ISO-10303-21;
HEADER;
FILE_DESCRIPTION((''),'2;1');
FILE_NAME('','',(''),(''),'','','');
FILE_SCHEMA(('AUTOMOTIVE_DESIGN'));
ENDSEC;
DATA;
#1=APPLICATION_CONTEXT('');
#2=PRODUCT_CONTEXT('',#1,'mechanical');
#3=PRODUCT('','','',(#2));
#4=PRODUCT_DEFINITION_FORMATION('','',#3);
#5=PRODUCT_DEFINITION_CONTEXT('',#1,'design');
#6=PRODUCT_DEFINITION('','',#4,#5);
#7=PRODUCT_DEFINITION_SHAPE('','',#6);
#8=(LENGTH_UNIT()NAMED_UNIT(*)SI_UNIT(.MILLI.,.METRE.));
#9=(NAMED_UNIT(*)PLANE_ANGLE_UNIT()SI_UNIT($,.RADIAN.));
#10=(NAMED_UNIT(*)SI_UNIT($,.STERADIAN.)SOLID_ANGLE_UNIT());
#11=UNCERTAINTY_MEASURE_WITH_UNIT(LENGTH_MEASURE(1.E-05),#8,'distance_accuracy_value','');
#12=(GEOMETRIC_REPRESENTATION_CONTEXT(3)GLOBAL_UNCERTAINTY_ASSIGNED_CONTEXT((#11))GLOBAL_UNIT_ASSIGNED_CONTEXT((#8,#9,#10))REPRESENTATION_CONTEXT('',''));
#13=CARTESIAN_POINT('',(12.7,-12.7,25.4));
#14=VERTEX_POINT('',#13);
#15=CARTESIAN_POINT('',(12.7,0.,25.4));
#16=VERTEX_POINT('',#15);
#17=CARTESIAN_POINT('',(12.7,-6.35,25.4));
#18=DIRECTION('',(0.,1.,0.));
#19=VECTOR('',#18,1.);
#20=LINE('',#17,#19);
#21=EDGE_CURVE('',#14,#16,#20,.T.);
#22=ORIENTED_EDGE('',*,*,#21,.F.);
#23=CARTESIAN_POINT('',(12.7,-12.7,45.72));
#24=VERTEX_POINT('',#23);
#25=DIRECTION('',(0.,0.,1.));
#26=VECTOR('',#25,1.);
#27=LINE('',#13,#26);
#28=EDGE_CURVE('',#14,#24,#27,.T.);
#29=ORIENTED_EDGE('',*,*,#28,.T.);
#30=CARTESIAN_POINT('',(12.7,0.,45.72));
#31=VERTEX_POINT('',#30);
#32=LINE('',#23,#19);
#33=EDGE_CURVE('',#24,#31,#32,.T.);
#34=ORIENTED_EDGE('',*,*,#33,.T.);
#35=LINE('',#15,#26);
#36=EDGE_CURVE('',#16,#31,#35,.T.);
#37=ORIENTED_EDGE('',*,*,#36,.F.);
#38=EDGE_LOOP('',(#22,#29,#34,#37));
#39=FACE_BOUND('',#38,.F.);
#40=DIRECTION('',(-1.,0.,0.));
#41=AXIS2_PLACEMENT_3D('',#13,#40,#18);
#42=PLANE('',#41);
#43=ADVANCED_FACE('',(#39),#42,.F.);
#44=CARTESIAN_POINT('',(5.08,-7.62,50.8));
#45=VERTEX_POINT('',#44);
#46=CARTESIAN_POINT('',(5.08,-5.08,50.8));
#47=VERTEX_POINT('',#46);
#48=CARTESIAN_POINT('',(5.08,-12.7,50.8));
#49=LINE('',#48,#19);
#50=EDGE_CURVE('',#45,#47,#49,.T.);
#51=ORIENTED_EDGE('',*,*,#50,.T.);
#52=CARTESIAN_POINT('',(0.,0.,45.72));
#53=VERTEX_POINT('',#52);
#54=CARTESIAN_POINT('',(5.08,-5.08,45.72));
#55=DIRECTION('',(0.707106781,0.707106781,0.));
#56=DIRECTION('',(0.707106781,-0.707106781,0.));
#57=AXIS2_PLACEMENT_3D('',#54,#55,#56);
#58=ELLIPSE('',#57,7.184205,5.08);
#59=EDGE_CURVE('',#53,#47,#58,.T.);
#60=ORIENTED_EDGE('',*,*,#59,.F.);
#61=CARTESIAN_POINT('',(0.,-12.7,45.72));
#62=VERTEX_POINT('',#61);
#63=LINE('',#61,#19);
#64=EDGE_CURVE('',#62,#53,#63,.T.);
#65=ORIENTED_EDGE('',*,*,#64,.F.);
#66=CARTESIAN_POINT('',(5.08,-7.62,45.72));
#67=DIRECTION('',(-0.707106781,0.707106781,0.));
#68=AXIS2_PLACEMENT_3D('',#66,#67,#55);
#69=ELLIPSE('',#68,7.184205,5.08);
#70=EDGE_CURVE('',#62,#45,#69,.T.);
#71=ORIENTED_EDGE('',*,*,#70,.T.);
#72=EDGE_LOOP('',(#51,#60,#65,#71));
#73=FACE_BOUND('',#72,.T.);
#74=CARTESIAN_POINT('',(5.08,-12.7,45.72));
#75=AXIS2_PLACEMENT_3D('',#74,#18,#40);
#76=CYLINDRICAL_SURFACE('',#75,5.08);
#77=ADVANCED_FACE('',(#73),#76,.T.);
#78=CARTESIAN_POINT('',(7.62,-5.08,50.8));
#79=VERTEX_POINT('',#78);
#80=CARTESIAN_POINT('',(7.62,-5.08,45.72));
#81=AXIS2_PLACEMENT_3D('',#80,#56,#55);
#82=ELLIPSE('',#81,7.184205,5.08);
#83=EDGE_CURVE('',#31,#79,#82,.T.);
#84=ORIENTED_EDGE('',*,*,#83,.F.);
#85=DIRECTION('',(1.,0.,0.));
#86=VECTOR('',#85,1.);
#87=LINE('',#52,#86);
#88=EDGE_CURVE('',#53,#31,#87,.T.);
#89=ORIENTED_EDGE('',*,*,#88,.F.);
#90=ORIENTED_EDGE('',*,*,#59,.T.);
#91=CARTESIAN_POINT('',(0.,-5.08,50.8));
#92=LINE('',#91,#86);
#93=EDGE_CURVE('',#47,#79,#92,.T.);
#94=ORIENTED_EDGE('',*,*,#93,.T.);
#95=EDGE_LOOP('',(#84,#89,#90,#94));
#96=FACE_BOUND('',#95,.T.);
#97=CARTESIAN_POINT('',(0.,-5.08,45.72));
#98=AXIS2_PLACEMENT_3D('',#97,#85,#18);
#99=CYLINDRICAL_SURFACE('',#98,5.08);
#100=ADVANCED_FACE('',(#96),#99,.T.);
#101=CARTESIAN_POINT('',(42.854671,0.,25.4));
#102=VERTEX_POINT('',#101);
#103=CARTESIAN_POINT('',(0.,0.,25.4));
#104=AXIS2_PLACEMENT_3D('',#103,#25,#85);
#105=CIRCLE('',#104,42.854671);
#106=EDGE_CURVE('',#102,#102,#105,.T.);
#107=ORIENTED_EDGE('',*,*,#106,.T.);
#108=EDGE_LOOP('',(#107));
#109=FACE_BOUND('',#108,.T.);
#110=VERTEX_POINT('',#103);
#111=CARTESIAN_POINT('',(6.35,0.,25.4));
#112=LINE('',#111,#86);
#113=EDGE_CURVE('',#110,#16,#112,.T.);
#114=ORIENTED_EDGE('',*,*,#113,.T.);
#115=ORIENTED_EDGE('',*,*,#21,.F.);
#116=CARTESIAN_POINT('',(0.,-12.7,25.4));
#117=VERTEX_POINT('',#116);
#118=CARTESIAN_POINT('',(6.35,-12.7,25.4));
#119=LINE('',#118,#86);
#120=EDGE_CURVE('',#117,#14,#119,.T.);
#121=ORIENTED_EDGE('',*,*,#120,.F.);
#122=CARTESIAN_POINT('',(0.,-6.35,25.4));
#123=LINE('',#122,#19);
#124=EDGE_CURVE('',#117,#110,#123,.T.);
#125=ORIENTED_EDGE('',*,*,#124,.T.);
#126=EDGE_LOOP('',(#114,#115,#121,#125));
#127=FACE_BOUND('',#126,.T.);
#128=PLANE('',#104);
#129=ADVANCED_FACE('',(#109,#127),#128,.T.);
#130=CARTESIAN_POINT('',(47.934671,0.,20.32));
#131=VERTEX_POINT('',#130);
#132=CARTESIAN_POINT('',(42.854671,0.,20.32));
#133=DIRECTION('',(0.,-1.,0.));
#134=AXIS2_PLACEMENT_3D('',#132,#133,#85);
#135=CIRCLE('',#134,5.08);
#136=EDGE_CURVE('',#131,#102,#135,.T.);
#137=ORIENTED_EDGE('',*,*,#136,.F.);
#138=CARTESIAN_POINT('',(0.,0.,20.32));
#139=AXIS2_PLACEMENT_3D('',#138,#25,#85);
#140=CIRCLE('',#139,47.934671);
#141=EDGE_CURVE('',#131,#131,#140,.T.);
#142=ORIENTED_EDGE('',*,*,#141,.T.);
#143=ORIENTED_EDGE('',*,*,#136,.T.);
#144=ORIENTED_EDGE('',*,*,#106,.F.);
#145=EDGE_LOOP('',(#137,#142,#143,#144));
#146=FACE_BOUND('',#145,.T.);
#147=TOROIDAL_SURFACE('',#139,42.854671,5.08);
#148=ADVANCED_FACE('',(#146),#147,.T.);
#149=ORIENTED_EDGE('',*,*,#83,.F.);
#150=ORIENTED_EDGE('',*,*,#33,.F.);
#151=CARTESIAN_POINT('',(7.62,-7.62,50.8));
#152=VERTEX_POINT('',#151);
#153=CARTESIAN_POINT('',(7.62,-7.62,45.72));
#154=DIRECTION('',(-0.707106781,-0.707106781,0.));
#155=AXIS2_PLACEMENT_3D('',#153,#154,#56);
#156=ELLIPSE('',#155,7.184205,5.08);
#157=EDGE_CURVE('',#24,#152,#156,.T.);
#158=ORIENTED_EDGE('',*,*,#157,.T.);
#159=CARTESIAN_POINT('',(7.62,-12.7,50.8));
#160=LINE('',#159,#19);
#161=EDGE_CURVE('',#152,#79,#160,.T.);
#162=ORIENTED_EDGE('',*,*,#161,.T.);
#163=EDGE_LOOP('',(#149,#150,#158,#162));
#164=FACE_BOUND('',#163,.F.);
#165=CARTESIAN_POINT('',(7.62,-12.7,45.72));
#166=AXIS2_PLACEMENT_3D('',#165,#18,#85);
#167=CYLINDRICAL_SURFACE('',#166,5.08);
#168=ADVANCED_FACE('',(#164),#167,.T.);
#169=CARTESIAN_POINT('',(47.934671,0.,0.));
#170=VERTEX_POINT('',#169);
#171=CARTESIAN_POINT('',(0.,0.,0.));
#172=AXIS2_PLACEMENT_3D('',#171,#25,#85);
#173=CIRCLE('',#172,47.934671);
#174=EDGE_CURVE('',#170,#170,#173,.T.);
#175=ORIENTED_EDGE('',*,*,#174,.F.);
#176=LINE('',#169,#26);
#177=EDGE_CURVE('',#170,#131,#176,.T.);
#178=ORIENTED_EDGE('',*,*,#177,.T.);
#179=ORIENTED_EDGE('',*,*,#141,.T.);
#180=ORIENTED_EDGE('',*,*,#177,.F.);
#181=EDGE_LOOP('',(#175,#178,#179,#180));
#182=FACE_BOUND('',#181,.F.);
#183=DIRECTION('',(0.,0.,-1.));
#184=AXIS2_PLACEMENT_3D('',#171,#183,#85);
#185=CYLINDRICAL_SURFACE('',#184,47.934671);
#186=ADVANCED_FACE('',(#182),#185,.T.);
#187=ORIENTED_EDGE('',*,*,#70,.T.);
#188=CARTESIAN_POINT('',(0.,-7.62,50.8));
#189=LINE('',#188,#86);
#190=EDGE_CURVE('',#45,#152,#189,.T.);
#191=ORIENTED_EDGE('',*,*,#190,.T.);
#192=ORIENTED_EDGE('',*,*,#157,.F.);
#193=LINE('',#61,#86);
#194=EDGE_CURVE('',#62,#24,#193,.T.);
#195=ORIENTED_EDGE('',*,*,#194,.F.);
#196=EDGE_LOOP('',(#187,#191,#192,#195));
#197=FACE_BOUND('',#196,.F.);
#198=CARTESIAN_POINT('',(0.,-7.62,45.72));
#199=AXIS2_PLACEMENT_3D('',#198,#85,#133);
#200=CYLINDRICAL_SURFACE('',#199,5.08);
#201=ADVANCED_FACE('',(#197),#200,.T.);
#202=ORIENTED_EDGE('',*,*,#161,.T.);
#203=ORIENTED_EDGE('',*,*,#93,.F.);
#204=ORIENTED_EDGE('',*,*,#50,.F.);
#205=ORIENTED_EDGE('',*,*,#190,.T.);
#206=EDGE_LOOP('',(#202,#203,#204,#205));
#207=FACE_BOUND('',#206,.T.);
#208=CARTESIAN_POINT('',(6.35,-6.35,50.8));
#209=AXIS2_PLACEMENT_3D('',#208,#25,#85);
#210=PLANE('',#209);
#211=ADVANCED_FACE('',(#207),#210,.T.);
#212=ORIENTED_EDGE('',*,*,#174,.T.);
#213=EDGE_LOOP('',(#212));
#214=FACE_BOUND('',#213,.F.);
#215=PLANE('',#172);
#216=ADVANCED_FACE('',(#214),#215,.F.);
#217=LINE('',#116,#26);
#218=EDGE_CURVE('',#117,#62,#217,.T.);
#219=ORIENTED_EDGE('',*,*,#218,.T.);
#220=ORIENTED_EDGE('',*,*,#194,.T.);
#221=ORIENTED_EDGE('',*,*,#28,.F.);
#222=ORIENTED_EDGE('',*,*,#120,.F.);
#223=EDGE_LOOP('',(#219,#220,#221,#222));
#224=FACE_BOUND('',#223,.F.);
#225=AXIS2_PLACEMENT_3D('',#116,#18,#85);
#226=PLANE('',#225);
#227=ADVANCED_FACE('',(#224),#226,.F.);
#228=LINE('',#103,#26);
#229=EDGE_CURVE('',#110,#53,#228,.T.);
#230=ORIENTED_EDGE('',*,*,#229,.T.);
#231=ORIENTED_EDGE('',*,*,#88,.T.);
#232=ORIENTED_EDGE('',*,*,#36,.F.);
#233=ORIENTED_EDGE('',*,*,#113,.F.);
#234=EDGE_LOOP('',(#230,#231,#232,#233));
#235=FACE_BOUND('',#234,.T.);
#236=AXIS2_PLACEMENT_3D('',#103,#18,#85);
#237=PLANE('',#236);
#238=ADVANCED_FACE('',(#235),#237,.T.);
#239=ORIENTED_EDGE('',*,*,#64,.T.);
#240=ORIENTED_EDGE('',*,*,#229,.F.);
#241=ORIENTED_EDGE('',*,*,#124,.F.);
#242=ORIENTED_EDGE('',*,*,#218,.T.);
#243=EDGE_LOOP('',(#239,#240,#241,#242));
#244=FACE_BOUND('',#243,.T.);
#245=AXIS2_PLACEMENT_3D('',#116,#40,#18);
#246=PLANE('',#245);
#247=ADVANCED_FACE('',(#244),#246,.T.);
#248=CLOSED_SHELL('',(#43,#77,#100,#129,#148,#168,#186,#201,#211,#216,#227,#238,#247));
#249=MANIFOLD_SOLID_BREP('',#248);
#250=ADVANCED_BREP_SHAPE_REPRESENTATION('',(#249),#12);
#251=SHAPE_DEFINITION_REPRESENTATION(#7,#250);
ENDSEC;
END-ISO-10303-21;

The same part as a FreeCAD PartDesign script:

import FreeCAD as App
import Part
import Sketcher

V = App.Vector
Q = App.Units.Quantity


def edges_at(feature, points):
    """Names of the edges that pass closest to the given points."""
    edges = feature.Shape.Edges
    near = lambda p: min(range(len(edges)), key=lambda i: edges[i].distToShape(Part.Vertex(*p))[0])
    return sorted({f"Edge{near(p) + 1}" for p in points})


def add_polygon(sketch, points):
    """Adds a closed chain of lines whose ends are joined by coincident constraints."""
    first, n = sketch.GeometryCount, len(points)
    for a, b in zip(points, points[1:] + points[:1]):
        sketch.addGeometry(Part.LineSegment(App.Vector(*a, 0), App.Vector(*b, 0)), False)
    for i in range(n):
        sketch.addConstraint(Sketcher.Constraint("Coincident", first + i, 2, first + (i + 1) % n, 1))

doc = App.newDocument("Part")
body = doc.addObject("PartDesign::Body", "Body")

sketch1 = body.newObject("Sketcher::SketchObject", "Sketch")
sketch1.AttachmentSupport = (doc.getObject("XY_Plane"), [""])
sketch1.MapMode = "FlatFace"
sketch1.addGeometry(Part.Circle(V(0, 0, 0), V(0, 0, 1), 48), False)
sketch1.addConstraint([
    Sketcher.Constraint("Coincident", 0, 3, -1, 1),
    Sketcher.Constraint("Diameter", 0, Q("95.869342 mm")),
])
pad1 = body.newObject("PartDesign::Pad", "Pad")
pad1.Profile = sketch1
pad1.Length = Q("1 in")

sketch2 = body.newObject("Sketcher::SketchObject", "Sketch001")
sketch2.AttachmentSupport = (doc.getObject("XY_Plane"), [""])
sketch2.MapMode = "FlatFace"
sketch2.AttachmentOffset = App.Placement(V(0, 0, 1 * 25.4), App.Rotation())
add_polygon(sketch2, [(0, 0), (0, -13), (13, -13), (13, 0)])
sketch2.addConstraint([
    Sketcher.Constraint("Vertical", 0),
    Sketcher.Constraint("Horizontal", 1),
    Sketcher.Constraint("Vertical", 2),
    Sketcher.Constraint("Horizontal", 3),
    Sketcher.Constraint("Coincident", 3, 2, -1, 1),
    Sketcher.Constraint("Equal", 3, 0),
    Sketcher.Constraint("DistanceX", 1, 1, 1, 2, Q("0.5 in")),
])
pad2 = body.newObject("PartDesign::Pad", "Pad001")
pad2.Profile = sketch2
pad2.Length = Q("1 in")
doc.recompute()

fillet = body.newObject("PartDesign::Fillet", "Fillet")
fillet.Base = (pad2, edges_at(pad2, [
    (-47.935, 0, 25.4),
    (6.35, -12.7, 50.8),
    (12.7, -6.35, 50.8),
    (6.35, 0, 50.8),
    (0, -6.35, 50.8),
]))
fillet.Radius = Q("0.2 in")

doc.recompute()
